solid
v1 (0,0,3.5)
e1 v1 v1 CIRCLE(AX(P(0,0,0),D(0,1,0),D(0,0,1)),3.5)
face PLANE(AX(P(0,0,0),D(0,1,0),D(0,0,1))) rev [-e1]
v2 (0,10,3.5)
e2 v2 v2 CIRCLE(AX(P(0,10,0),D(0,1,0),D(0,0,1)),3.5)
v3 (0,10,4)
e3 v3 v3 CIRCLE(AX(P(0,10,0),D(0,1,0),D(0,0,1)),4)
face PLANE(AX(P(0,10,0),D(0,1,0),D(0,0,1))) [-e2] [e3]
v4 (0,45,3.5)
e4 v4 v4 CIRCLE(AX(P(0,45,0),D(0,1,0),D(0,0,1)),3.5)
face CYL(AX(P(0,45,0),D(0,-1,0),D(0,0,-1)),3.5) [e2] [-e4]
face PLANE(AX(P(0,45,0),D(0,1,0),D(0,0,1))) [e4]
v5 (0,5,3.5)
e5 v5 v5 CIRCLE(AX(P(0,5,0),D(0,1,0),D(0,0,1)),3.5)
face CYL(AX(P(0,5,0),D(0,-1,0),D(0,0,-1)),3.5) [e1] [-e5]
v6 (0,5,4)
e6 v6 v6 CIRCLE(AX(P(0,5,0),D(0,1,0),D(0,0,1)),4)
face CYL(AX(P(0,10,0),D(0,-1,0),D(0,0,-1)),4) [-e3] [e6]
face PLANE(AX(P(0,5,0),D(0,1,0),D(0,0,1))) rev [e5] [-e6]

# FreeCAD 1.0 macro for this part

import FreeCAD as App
import Part
import Sketcher
from FreeCAD import Vector
Q = App.Units.Quantity

doc = App.newDocument("Part")
body = doc.addObject("PartDesign::Body", "Body")

# Sketch on XZ plane
sketch1 = doc.addObject("Sketcher::SketchObject", "Sketch")
body.addObject(sketch1)
sketch1.AttachmentSupport = (doc.XZ_Plane, [""])
sketch1.MapMode = "FlatFace"
sketch1.addGeometry(Part.Circle(Vector(0, 0, 0), Vector(0, 0, 1), 3.5), False)
sketch1.addConstraint([
    Sketcher.Constraint("Coincident", 0, 3, -1, 1),
    Sketcher.Constraint("Diameter", 0, Q("7 mm")),
])
pad1 = doc.addObject("PartDesign::Pad", "Pad")
body.addObject(pad1)
pad1.Profile = sketch1
pad1.Length = 5
pad1.Reversed = True

# Sketch on XZ plane
sketch2 = doc.addObject("Sketcher::SketchObject", "Sketch001")
body.addObject(sketch2)
sketch2.AttachmentSupport = (doc.XZ_Plane, [""])
sketch2.MapMode = "FlatFace"
sketch2.AttachmentOffset = App.Placement(Vector(0, 0, -5), App.Rotation())
sketch2.addGeometry(Part.Circle(Vector(0, 0, 0), Vector(0, 0, 1), 4), False)
sketch2.addConstraint([
    Sketcher.Constraint("Coincident", 0, 3, -1, 1),
    Sketcher.Constraint("Diameter", 0, Q("8 mm")),
])
pad2 = doc.addObject("PartDesign::Pad", "Pad001")
body.addObject(pad2)
pad2.Profile = sketch2
pad2.Length = 5
pad2.Reversed = True

# Sketch on XZ plane
sketch3 = doc.addObject("Sketcher::SketchObject", "Sketch002")
body.addObject(sketch3)
sketch3.AttachmentSupport = (doc.XZ_Plane, [""])
sketch3.MapMode = "FlatFace"
sketch3.AttachmentOffset = App.Placement(Vector(0, 0, -10), App.Rotation())
sketch3.addGeometry(Part.Circle(Vector(0, 0, 0), Vector(0, 0, 1), 3.5), False)
sketch3.addConstraint([
    Sketcher.Constraint("Coincident", 0, 3, -1, 1),
    Sketcher.Constraint("Diameter", 0, Q("7 mm")),
])
pad3 = doc.addObject("PartDesign::Pad", "Pad002")
body.addObject(pad3)
pad3.Profile = sketch3
pad3.Length = 35
pad3.Reversed = True

doc.recompute()
